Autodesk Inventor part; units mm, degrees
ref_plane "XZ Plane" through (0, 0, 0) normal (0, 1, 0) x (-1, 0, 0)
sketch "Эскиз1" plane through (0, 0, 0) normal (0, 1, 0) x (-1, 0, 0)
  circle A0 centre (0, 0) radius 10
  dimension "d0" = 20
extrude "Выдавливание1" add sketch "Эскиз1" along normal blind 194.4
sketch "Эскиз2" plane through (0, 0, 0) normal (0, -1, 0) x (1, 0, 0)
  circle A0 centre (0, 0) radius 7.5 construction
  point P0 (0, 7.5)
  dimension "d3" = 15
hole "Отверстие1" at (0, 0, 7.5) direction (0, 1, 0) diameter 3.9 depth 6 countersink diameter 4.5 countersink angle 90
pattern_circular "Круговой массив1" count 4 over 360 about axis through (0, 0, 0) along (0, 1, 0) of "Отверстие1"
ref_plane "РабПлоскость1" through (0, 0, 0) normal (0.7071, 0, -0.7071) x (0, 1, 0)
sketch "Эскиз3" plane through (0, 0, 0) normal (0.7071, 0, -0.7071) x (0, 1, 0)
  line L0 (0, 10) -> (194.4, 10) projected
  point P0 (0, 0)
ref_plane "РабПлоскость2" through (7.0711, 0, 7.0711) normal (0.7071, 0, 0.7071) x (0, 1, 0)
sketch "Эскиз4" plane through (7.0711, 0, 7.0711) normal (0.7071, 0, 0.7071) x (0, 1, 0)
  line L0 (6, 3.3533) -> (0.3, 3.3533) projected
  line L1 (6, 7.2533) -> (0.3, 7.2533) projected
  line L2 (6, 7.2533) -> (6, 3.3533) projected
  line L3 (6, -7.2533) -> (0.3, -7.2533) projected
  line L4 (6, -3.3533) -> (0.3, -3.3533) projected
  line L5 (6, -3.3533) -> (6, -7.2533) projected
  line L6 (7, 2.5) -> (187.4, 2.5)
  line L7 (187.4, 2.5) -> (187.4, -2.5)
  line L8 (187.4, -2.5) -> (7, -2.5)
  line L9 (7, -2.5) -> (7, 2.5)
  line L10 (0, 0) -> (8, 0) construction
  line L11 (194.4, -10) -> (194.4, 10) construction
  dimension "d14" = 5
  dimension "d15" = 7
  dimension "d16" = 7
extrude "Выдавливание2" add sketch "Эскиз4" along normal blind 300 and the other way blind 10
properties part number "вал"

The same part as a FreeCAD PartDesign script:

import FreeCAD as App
import Part
import Sketcher
from FreeCAD import Vector
Q = App.Units.Quantity


def add_polygon(sketch, points):
    """Adds a closed chain of lines whose ends are joined by coincident constraints."""
    first, n = sketch.GeometryCount, len(points)
    for a, b in zip(points, points[1:] + points[:1]):
        sketch.addGeometry(Part.LineSegment(App.Vector(*a, 0), App.Vector(*b, 0)), False)
    for i in range(n):
        sketch.addConstraint(Sketcher.Constraint("Coincident", first + i, 2, first + (i + 1) % n, 1))

doc = App.newDocument("Part")
body = doc.addObject("PartDesign::Body", "Body")

# Sketch on XZ plane
sketch1 = body.newObject("Sketcher::SketchObject", "Sketch")
sketch1.AttachmentSupport = (doc.getObject("XZ_Plane"), [""])
sketch1.MapMode = "FlatFace"
sketch1.addGeometry(Part.Circle(Vector(0, 0, 0), Vector(0, 0, 1), 10), False)
sketch1.addConstraint(Sketcher.Constraint("Coincident", 0, 3, -1, 1))
sketch1.addConstraint(Sketcher.Constraint("Diameter", 0, Q("20 mm")))
pad1 = body.newObject("PartDesign::Pad", "Pad")
pad1.Profile = sketch1
pad1.Length = 194.4
pad1.Reversed = True

# Sketch on XZ plane
sketch2 = body.newObject("Sketcher::SketchObject", "Sketch001")
sketch2.AttachmentSupport = (doc.getObject("XZ_Plane"), [""])
sketch2.MapMode = "FlatFace"
sketch2.addGeometry(Part.Circle(Vector(0, 7.5, 0), Vector(0, 0, 1), 1.95), False)
sketch2.addConstraint(Sketcher.Constraint("PointOnObject", 0, 3, -2))
sketch2.addConstraint(Sketcher.Constraint("Diameter", 0, Q("3.9 mm")))
sketch2.addConstraint(Sketcher.Constraint("DistanceY", -1, 1, 0, 3, Q("7.5 mm")))
doc.recompute()
hole = body.newObject("PartDesign::Hole", "Hole")
hole.Profile = sketch2
hole.ThreadType = "None"
hole.Diameter = 3.9
hole.DepthType = "Dimension"
hole.Depth = 6
hole.DrillPoint = "Flat"
hole.HoleCutType = "Countersink"
hole.HoleCutDiameter = 4.5
hole.HoleCutCountersinkAngle = 90
doc.recompute()

polarpattern = body.newObject("PartDesign::PolarPattern", "PolarPattern")
polarpattern.Originals = [hole]
polarpattern.Axis = (doc.getObject("Y_Axis"), [""])
polarpattern.Angle = 360
polarpattern.Occurrences = 4
body.Tip = polarpattern

# Sketch on an angled plane
sketch3 = body.newObject("Sketcher::SketchObject", "Sketch002")
sketch3.Placement = App.Placement(Vector(7.0711, 0, 7.0711), App.Rotation(Vector(0, 1, 0), Vector(-0.707106781, 0, 0.707106781), Vector(0.707106781, 0, 0.707106781), "ZXY"))
add_polygon(sketch3, [(187.4, 2.5), (7, 2.5), (7, -2.5), (187.4, -2.5)])  # lines 0-3
sketch3.addConstraint(Sketcher.Constraint("Horizontal", 0))
sketch3.addConstraint(Sketcher.Constraint("Vertical", 1))
sketch3.addConstraint(Sketcher.Constraint("Horizontal", 2))
sketch3.addConstraint(Sketcher.Constraint("Vertical", 3))
sketch3.addConstraint(Sketcher.Constraint("DistanceY", 1, 2, 1, 1, Q("5 mm")))
sketch3.addConstraint(Sketcher.Constraint("DistanceX", -1, 1, 0, 2, Q("7 mm")))
sketch3.addConstraint(Sketcher.Constraint("DistanceX", 0, 2, 0, 1, Q("180.4 mm")))
sketch3.addConstraint(Sketcher.Constraint("DistanceY", -1, 1, 0, 2, Q("2.5 mm")))
pad2 = body.newObject("PartDesign::Pad", "Pad001")
pad2.Profile = sketch3
pad2.Type = "TwoLengths"
pad2.Length = 300
pad2.Length2 = 10

doc.recompute()
